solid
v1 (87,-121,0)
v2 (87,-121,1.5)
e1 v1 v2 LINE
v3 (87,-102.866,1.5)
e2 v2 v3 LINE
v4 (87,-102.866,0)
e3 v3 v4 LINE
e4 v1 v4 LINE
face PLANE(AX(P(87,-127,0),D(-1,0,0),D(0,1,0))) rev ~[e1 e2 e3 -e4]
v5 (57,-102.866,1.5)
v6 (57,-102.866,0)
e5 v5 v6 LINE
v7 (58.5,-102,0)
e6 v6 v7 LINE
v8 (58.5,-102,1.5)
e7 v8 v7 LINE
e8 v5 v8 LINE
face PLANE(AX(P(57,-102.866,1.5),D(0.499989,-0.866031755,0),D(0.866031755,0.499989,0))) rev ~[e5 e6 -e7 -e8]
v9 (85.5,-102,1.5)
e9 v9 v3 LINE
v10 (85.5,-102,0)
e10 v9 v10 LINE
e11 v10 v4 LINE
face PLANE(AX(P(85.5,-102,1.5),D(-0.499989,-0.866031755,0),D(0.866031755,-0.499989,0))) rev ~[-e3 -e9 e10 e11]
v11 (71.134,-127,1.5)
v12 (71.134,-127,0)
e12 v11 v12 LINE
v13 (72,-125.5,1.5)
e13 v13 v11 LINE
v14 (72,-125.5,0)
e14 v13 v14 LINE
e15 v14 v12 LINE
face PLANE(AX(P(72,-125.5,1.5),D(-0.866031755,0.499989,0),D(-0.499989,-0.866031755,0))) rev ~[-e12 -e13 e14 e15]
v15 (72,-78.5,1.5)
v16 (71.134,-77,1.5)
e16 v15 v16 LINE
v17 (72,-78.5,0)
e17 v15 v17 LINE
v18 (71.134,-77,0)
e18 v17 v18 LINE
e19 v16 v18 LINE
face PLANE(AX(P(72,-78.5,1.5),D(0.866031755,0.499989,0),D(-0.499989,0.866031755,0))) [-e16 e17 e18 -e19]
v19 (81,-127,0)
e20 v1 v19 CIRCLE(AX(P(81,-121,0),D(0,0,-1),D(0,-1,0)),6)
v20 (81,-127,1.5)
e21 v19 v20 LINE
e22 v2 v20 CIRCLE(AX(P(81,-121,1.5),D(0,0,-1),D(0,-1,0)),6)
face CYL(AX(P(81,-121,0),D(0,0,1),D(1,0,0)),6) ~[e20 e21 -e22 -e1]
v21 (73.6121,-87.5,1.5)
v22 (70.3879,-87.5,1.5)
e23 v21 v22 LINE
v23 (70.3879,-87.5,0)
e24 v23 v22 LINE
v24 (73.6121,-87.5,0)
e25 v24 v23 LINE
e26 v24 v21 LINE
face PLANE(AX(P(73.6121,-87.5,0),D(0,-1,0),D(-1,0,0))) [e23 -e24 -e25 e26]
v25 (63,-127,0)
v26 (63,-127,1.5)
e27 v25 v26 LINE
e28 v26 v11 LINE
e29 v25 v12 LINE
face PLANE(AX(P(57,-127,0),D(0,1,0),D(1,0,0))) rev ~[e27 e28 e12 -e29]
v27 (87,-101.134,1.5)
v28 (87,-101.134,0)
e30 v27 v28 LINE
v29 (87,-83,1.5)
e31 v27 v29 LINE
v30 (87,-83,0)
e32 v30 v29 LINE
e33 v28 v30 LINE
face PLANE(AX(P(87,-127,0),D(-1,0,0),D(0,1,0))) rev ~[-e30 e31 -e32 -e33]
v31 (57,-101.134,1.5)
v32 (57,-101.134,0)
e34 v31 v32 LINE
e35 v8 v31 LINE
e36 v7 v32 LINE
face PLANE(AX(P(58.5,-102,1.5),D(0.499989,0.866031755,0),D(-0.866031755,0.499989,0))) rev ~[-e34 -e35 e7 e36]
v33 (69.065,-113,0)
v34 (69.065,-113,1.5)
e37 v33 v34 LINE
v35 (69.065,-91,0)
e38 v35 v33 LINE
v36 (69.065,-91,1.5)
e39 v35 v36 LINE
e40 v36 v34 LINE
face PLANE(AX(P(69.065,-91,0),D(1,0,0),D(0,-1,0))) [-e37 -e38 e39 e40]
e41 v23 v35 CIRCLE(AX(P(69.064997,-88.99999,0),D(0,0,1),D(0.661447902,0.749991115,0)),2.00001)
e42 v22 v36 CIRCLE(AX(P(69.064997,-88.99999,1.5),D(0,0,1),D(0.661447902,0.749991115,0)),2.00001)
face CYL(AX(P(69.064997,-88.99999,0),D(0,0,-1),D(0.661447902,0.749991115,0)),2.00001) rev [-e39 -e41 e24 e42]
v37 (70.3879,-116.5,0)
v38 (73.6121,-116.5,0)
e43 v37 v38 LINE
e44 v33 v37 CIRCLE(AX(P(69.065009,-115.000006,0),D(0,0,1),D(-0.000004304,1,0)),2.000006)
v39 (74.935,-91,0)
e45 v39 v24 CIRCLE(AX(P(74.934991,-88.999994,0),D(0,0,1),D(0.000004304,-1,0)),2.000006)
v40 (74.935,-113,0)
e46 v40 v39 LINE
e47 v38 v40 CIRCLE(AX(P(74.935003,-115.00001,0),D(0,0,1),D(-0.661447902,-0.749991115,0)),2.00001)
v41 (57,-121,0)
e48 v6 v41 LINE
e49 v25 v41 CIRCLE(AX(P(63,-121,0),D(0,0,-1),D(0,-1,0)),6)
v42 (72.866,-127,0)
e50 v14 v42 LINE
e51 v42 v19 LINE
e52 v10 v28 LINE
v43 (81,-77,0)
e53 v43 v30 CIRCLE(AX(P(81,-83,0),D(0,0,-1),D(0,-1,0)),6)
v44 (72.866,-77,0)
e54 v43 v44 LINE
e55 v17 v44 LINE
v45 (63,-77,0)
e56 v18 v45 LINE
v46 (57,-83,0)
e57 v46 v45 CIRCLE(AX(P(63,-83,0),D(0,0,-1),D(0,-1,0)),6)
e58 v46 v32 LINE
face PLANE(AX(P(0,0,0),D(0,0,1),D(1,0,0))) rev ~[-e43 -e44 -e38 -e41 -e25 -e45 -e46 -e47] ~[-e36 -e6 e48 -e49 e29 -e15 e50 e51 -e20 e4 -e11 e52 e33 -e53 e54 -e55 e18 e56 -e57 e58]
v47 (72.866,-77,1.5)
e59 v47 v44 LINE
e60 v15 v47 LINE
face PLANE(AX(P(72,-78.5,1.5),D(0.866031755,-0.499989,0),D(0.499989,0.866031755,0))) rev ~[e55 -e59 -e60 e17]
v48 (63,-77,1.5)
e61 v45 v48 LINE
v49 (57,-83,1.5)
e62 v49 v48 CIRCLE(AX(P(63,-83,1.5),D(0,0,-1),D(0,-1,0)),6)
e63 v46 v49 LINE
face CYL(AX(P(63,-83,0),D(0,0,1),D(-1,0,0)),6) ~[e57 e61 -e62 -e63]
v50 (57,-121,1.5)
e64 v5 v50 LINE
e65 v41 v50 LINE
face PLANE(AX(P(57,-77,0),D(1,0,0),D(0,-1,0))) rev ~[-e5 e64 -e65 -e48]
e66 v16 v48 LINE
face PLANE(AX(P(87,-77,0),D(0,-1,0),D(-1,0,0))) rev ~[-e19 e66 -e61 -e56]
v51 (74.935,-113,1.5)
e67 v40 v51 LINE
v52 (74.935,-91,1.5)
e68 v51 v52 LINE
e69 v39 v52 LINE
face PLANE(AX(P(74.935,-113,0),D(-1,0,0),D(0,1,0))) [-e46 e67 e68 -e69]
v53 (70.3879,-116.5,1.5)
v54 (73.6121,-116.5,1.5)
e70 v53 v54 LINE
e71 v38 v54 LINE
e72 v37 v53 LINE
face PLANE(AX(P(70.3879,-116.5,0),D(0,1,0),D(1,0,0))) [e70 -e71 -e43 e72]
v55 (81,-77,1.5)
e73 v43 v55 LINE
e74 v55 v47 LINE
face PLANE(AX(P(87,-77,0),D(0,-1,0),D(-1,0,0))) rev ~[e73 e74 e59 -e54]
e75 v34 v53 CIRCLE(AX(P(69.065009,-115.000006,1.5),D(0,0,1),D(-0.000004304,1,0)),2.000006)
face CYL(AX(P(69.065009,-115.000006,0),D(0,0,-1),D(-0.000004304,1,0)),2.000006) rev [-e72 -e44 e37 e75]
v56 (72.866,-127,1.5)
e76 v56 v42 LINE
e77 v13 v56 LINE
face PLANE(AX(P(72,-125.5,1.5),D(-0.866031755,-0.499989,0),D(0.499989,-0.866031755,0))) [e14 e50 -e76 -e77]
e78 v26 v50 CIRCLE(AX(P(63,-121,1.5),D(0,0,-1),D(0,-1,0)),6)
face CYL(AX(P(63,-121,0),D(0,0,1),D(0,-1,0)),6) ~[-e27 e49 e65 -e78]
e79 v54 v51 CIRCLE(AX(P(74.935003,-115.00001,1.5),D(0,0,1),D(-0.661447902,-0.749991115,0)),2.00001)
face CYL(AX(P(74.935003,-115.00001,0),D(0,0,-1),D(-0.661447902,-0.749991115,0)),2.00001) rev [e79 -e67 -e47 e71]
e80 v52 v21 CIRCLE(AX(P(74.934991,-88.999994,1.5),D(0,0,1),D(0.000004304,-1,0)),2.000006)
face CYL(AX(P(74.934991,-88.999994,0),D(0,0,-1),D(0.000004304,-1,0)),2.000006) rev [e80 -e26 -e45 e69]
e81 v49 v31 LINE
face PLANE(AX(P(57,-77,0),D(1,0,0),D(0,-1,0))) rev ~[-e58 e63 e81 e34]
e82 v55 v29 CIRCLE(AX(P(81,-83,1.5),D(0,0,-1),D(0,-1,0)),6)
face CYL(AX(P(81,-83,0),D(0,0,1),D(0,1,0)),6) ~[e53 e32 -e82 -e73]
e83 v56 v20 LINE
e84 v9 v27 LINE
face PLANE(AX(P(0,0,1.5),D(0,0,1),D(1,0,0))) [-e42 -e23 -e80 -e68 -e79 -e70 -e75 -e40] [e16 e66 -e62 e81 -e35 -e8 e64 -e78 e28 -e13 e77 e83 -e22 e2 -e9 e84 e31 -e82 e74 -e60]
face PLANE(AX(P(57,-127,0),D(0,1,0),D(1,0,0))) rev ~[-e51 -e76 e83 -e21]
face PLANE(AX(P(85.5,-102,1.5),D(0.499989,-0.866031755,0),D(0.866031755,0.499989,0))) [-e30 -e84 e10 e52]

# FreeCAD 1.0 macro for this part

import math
import FreeCAD as App
import Part
import Sketcher

V = App.Vector
Q = App.Units.Quantity


def edges_at(feature, points):
    """Names of the edges that pass closest to the given points."""
    edges = feature.Shape.Edges
    near = lambda p: min(range(len(edges)), key=lambda i: edges[i].distToShape(Part.Vertex(*p))[0])
    return sorted({f"Edge{near(p) + 1}" for p in points})


def add_polygon(sketch, points):
    """Adds a closed chain of lines whose ends are joined by coincident constraints."""
    first, n = sketch.GeometryCount, len(points)
    for a, b in zip(points, points[1:] + points[:1]):
        sketch.addGeometry(Part.LineSegment(App.Vector(*a, 0), App.Vector(*b, 0)), False)
    for i in range(n):
        sketch.addConstraint(Sketcher.Constraint("Coincident", first + i, 2, first + (i + 1) % n, 1))

doc = App.newDocument("Part")
params = doc.addObject("Spreadsheet::Sheet", "Params")
for row, (alias, value) in enumerate([
    ("sketch1_radius", "2 mm"),
    ("sketch1_width", "30 mm"),
    ("sketch1_height", "50 mm"),
    ("sketch1_height2", "22 mm"),
    ("pad1_length", "1.5 mm"),
    ("pocket1_length", "1.5 mm"),
    ("fillet_radius", "6 mm"),
], start=1):
    params.set(f"A{row}", alias)
    params.set(f"B{row}", "=" + value)
    params.setAlias(f"B{row}", alias)

body = doc.addObject("PartDesign::Body", "Body")

# Sketch on XY plane
sketch1 = body.newObject("Sketcher::SketchObject", "Sketch")
sketch1.AttachmentSupport = (doc.getObject("XY_Plane"), [""])
sketch1.MapMode = "FlatFace"
add_polygon(sketch1, [(57, -77), (57, -127), (87, -127), (87, -77)])  # lines 0-3
sketch1.addGeometry(Part.LineSegment(V(70.4, -87.5, 0), V(73.6, -87.5, 0)), False)  # 4
sketch1.addGeometry(Part.ArcOfCircle(Part.Circle(V(74.9, -89, 0), V(0, 0, 1), 2), math.radians(-90), math.radians(131)), False)  # 5
sketch1.addGeometry(Part.LineSegment(V(74.9, -91, 0), V(74.9, -113, 0)), False)  # 6
sketch1.addGeometry(Part.ArcOfCircle(Part.Circle(V(74.9, -115, 0), V(0, 0, 1), 2), math.radians(-131), math.radians(90)), False)  # 7
sketch1.addGeometry(Part.LineSegment(V(73.6, -116.5, 0), V(70.4, -116.5, 0)), False)  # 8
sketch1.addGeometry(Part.ArcOfCircle(Part.Circle(V(69.1, -115, 0), V(0, 0, 1), 2), math.radians(90), math.radians(311)), False)  # 9
sketch1.addGeometry(Part.LineSegment(V(69.1, -113, 0), V(69.1, -91, 0)), False)  # 10
sketch1.addGeometry(Part.ArcOfCircle(Part.Circle(V(69.1, -89, 0), V(0, 0, 1), 2), math.radians(49), math.radians(270)), False)  # 11
sketch1.addConstraint(Sketcher.Constraint("Coincident", 4, 2, 5, 2))
sketch1.addConstraint(Sketcher.Constraint("Coincident", 5, 1, 6, 1))
sketch1.addConstraint(Sketcher.Constraint("Coincident", 6, 2, 7, 2))
sketch1.addConstraint(Sketcher.Constraint("Coincident", 7, 1, 8, 1))
sketch1.addConstraint(Sketcher.Constraint("Coincident", 8, 2, 9, 2))
sketch1.addConstraint(Sketcher.Constraint("Coincident", 9, 1, 10, 1))
sketch1.addConstraint(Sketcher.Constraint("Coincident", 10, 2, 11, 2))
sketch1.addConstraint(Sketcher.Constraint("Coincident", 11, 1, 4, 1))
sketch1.addConstraint(Sketcher.Constraint("Vertical", 0))
sketch1.addConstraint(Sketcher.Constraint("Horizontal", 1))
sketch1.addConstraint(Sketcher.Constraint("Vertical", 2))
sketch1.addConstraint(Sketcher.Constraint("Horizontal", 3))
sketch1.addConstraint(Sketcher.Constraint("Horizontal", 4))
sketch1.addConstraint(Sketcher.Constraint("Vertical", 6))
sketch1.addConstraint(Sketcher.Constraint("Horizontal", 8))
sketch1.addConstraint(Sketcher.Constraint("Vertical", 10))
sketch1.addConstraint(Sketcher.Constraint("Equal", 5, 7))
sketch1.addConstraint(Sketcher.Constraint("Equal", 7, 9))
sketch1.addConstraint(Sketcher.Constraint("Equal", 9, 11))
sketch1.addConstraint(Sketcher.Constraint("Horizontal", 7, 3, 9, 3))
sketch1.addConstraint(Sketcher.Constraint("Horizontal", 5, 3, 11, 3))
sketch1.addConstraint(Sketcher.Constraint("Vertical", 5, 3, 7, 3))
sketch1.addConstraint(Sketcher.Constraint("Vertical", 9, 3, 11, 3))
sketch1.addConstraint(Sketcher.Constraint("Vertical", 7, 3, 5, 1))
sketch1.addConstraint(Sketcher.Constraint("Vertical", 4, 2, 7, 1))
sketch1.addConstraint(Sketcher.Constraint("Vertical", 11, 3, 9, 1))
sketch1.addConstraint(Sketcher.Constraint("Radius", 5, 2.0))
sketch1.addConstraint(Sketcher.Constraint("DistanceX", 1, 1, 1, 2, 30.0))
sketch1.addConstraint(Sketcher.Constraint("DistanceY", 0, 2, 0, 1, 50.0))
sketch1.addConstraint(Sketcher.Constraint("DistanceY", 5, 3, 4, 2, 1.5))
sketch1.addConstraint(Sketcher.Constraint("DistanceY", 6, 2, 6, 1, 22.0))
sketch1.addConstraint(Sketcher.Constraint("DistanceX", 9, 3, 7, 3, 5.87))
sketch1.addConstraint(Sketcher.Constraint("DistanceY", 5, 3, -1, 1, 89.0))
sketch1.addConstraint(Sketcher.Constraint("DistanceX", -1, 1, 0, 2, 57.0))
sketch1.addConstraint(Sketcher.Constraint("DistanceY", 0, 2, -1, 1, 127.0))
sketch1.addConstraint(Sketcher.Constraint("DistanceX", -1, 1, 5, 3, 74.935))
sketch1.setExpression("Constraints[30]", "Params.sketch1_radius")
sketch1.setExpression("Constraints[31]", "Params.sketch1_width")
sketch1.setExpression("Constraints[32]", "Params.sketch1_height")
sketch1.setExpression("Constraints[34]", "Params.sketch1_height2")
pad1 = body.newObject("PartDesign::Pad", "Pad")
pad1.Profile = sketch1
pad1.setExpression("Length", "Params.pad1_length")

# Sketch on XY plane
sketch2 = body.newObject("Sketcher::SketchObject", "Sketch001")
sketch2.AttachmentSupport = (doc.getObject("XY_Plane"), [""])
sketch2.MapMode = "FlatFace"
sketch2.AttachmentOffset = App.Placement(V(0, 0, 1.5), App.Rotation())
add_polygon(sketch2, [(71.1, -77), (72, -78.5), (72.9, -77)])  # lines 0-2
add_polygon(sketch2, [(72.9, -127), (72, -125.5), (71.1, -127)])  # lines 3-5
add_polygon(sketch2, [(57, -102.9), (58.5, -102), (57, -101.1)])  # lines 6-8
add_polygon(sketch2, [(87, -101.1), (85.5, -102), (87, -102.9)])  # lines 9-11
sketch2.addConstraint(Sketcher.Constraint("Horizontal", 2))
sketch2.addConstraint(Sketcher.Constraint("Horizontal", 5))
sketch2.addConstraint(Sketcher.Constraint("Vertical", 8))
sketch2.addConstraint(Sketcher.Constraint("Vertical", 11))
sketch2.addConstraint(Sketcher.Constraint("Parallel", 0, 3))
sketch2.addConstraint(Sketcher.Constraint("Parallel", 1, 4))
sketch2.addConstraint(Sketcher.Constraint("Perpendicular", 3, 6))
sketch2.addConstraint(Sketcher.Constraint("Perpendicular", 4, 7))
sketch2.addConstraint(Sketcher.Constraint("Parallel", 6, 9))
sketch2.addConstraint(Sketcher.Constraint("Parallel", 7, 10))
sketch2.addConstraint(Sketcher.Constraint("Horizontal", 6, 2, 9, 2))
sketch2.addConstraint(Sketcher.Constraint("Horizontal", 8, 2, 10, 2))
sketch2.addConstraint(Sketcher.Constraint("Horizontal", 7, 2, 11, 2))
sketch2.addConstraint(Sketcher.Constraint("Vertical", 0, 2, 3, 2))
sketch2.addConstraint(Sketcher.Constraint("Vertical", 2, 2, 4, 2))
sketch2.addConstraint(Sketcher.Constraint("Equal", 5, 8))
sketch2.addConstraint(Sketcher.Constraint("DistanceY", 0, 2, 1, 2, 1.5))
sketch2.addConstraint(Sketcher.Constraint("Angle", 0, Q("-60.0007 deg")))
sketch2.addConstraint(Sketcher.Constraint("DistanceX", -1, 1, 0, 2, 72.0))
sketch2.addConstraint(Sketcher.Constraint("DistanceY", 1, 2, -1, 1, 77.0))
sketch2.addConstraint(Sketcher.Constraint("DistanceY", 4, 2, -1, 1, 127.0))
sketch2.addConstraint(Sketcher.Constraint("DistanceY", 6, 2, -1, 1, 102.0))
sketch2.addConstraint(Sketcher.Constraint("DistanceX", -1, 1, 7, 2, 57.0))
sketch2.addConstraint(Sketcher.Constraint("DistanceX", -1, 1, 10, 2, 87.0))
pocket1 = body.newObject("PartDesign::Pocket", "Pocket")
pocket1.Profile = sketch2
pocket1.setExpression("Length", "Params.pocket1_length")
doc.recompute()

fillet = body.newObject("PartDesign::Fillet", "Fillet")
fillet.Base = (pocket1, edges_at(pocket1, [
    (57, -127, 0.75),
    (87, -127, 0.75),
    (87, -77, 0.75),
    (57, -77, 0.75),
]))
fillet.setExpression("Radius", "Params.fillet_radius")

doc.recompute()
